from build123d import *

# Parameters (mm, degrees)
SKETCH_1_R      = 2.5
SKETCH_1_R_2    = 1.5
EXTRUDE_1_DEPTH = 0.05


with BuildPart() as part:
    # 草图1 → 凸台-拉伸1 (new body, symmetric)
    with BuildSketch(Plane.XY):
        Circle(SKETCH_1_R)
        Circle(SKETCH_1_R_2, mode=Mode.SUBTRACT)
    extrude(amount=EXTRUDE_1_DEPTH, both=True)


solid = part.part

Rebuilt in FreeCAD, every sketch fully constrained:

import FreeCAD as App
import Part
import Sketcher

V = App.Vector
Q = App.Units.Quantity

doc = App.newDocument("Part")
body = doc.addObject("PartDesign::Body", "Body")

sketch1 = body.newObject("Sketcher::SketchObject", "Sketch")
sketch1.AttachmentSupport = (doc.getObject("XY_Plane"), [""])
sketch1.MapMode = "FlatFace"
sketch1.addGeometry([
    Part.Circle(V(0, 0, 0), V(0, 0, 1), 2.5),
    Part.Circle(V(0, 0, 0), V(0, 0, 1), 1.5),
], False)
sketch1.addConstraint([
    Sketcher.Constraint("Coincident", 0, 3, -1, 1),
    Sketcher.Constraint("Coincident", 1, 3, -1, 1),
    Sketcher.Constraint("Diameter", 0, Q("5 mm")),
    Sketcher.Constraint("Diameter", 1, Q("3 mm")),
])
pad1 = body.newObject("PartDesign::Pad", "Pad")
pad1.Profile = sketch1
pad1.Length = 0.1
pad1.Midplane = True

doc.recompute()
